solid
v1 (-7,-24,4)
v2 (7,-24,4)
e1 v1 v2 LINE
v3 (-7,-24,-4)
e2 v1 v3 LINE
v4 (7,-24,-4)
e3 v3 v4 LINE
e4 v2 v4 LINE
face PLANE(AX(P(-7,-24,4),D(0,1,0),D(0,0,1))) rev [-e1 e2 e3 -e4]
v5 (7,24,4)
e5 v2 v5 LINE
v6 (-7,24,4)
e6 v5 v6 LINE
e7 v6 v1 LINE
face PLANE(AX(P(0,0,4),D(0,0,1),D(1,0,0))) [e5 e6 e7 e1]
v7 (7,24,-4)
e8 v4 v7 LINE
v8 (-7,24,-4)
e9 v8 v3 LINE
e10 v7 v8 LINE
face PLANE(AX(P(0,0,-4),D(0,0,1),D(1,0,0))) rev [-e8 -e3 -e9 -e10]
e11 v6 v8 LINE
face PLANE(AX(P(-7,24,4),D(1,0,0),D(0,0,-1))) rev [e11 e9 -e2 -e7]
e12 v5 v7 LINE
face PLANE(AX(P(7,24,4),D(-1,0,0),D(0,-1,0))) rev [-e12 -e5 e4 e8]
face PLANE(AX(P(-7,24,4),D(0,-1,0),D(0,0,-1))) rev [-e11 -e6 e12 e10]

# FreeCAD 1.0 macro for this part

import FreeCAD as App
import Part
import Sketcher

V = App.Vector


def add_polygon(sketch, points):
    """Adds a closed chain of lines whose ends are joined by coincident constraints."""
    first, n = sketch.GeometryCount, len(points)
    for a, b in zip(points, points[1:] + points[:1]):
        sketch.addGeometry(Part.LineSegment(App.Vector(*a, 0), App.Vector(*b, 0)), False)
    for i in range(n):
        sketch.addConstraint(Sketcher.Constraint("Coincident", first + i, 2, first + (i + 1) % n, 1))

doc = App.newDocument("Part")
params = doc.addObject("Spreadsheet::Sheet", "Params")
for row, (alias, value) in enumerate([
    ("sketch1_width", "14 mm"),
    ("sketch1_height", "48 mm"),
    ("pad1_length", "8 mm"),
], start=1):
    params.set(f"A{row}", alias)
    params.set(f"B{row}", "=" + value)
    params.setAlias(f"B{row}", alias)

body = doc.addObject("PartDesign::Body", "Body")

# Sketch on XY plane
sketch1 = body.newObject("Sketcher::SketchObject", "Sketch")
sketch1.AttachmentSupport = (doc.getObject("XY_Plane"), [""])
sketch1.MapMode = "FlatFace"
add_polygon(sketch1, [(-7, 24), (-7, -24), (7, -24), (7, 24)])  # lines 0-3
sketch1.addConstraint([
    Sketcher.Constraint("Vertical", 0),
    Sketcher.Constraint("Horizontal", 1),
    Sketcher.Constraint("Vertical", 2),
    Sketcher.Constraint("Horizontal", 3),
    Sketcher.Constraint("Symmetric", 0, 2, 2, 2, -1, 1),
    Sketcher.Constraint("DistanceX", 1, 1, 1, 2, 14.0),
    Sketcher.Constraint("DistanceY", 0, 2, 0, 1, 48.0),
])
sketch1.setExpression("Constraints[9]", "Params.sketch1_width")
sketch1.setExpression("Constraints[10]", "Params.sketch1_height")
pad1 = body.newObject("PartDesign::Pad", "Pad")
pad1.Profile = sketch1
pad1.setExpression("Length", "Params.pad1_length")
pad1.Midplane = True

doc.recompute()
